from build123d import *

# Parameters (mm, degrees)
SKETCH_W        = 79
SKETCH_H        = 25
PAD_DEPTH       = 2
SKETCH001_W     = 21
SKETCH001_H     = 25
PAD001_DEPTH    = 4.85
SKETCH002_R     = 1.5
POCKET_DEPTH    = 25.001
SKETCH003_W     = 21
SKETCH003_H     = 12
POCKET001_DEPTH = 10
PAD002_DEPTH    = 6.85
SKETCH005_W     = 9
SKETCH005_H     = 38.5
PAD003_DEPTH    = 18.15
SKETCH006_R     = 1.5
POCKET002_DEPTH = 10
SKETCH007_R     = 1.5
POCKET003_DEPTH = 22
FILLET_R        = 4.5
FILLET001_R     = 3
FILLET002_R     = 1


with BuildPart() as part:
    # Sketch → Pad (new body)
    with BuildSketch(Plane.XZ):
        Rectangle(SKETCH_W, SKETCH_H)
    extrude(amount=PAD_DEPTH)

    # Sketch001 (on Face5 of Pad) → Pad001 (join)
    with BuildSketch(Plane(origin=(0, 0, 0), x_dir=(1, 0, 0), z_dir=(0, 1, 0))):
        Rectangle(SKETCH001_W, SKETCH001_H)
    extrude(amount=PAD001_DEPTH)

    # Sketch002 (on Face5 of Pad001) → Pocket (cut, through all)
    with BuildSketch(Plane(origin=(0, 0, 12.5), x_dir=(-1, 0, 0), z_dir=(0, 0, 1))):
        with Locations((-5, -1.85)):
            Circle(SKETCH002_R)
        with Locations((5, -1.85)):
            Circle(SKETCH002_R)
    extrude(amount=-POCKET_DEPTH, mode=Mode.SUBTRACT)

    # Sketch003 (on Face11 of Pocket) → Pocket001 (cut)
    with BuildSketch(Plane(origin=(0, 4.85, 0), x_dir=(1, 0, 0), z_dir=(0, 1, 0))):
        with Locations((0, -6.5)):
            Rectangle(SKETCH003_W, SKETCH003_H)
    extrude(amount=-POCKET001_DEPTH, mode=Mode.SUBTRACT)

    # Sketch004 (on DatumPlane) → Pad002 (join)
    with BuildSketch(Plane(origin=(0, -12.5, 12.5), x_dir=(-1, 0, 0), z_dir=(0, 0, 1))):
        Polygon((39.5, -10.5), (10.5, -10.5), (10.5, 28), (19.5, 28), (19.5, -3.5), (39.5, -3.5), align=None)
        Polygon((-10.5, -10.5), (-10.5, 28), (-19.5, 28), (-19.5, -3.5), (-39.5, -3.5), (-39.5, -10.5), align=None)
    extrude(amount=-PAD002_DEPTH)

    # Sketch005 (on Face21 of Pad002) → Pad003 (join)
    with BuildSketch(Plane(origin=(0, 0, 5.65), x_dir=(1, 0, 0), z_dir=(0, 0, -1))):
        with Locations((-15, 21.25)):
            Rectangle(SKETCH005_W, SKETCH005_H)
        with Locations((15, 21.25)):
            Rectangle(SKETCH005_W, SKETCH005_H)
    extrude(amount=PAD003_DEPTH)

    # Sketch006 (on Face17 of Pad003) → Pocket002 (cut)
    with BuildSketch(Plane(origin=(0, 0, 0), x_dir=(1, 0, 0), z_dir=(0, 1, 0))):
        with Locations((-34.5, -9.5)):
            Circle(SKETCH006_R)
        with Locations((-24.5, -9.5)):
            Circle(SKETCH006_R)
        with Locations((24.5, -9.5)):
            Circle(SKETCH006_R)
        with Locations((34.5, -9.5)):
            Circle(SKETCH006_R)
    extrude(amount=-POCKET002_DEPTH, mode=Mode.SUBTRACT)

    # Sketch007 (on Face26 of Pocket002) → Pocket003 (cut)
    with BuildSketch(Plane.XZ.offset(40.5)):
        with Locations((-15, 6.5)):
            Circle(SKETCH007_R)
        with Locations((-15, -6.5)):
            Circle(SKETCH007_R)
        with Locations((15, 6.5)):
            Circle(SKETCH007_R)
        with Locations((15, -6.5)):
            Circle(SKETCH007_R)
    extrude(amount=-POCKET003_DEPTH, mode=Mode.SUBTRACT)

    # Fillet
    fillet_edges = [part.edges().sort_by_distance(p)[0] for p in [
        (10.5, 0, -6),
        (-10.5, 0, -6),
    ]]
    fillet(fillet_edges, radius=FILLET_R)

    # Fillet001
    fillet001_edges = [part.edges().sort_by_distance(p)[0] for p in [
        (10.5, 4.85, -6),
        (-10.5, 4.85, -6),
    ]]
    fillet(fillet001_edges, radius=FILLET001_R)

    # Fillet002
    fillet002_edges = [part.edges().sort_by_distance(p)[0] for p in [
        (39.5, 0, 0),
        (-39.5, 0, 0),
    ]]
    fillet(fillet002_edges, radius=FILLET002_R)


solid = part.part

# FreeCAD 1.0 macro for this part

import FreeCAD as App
import Part
import Sketcher
from FreeCAD import Vector


def edges_at(feature, points):
    """Names of the edges that pass closest to the given points."""
    edges = feature.Shape.Edges
    near = lambda p: min(range(len(edges)), key=lambda i: edges[i].distToShape(Part.Vertex(*p))[0])
    return sorted({f"Edge{near(p) + 1}" for p in points})

doc = App.newDocument("Part")
body = doc.addObject("PartDesign::Body", "Body")

sketch1 = body.newObject("Sketcher::SketchObject", "Sketch")
sketch1.AttachmentSupport = (doc.getObject("XZ_Plane"), [""])
sketch1.MapMode = "FlatFace"
sketch1.addGeometry([
    Part.LineSegment(Vector(-40, 12, 0), Vector(-40, -12, 0)),
    Part.LineSegment(Vector(-40, -12, 0), Vector(40, -12, 0)),
    Part.LineSegment(Vector(40, -12, 0), Vector(40, 12, 0)),
    Part.LineSegment(Vector(40, 12, 0), Vector(-40, 12, 0)),
], False)
sketch1.addConstraint([
    Sketcher.Constraint("Coincident", 0, 2, 1, 1),
    Sketcher.Constraint("Coincident", 1, 2, 2, 1),
    Sketcher.Constraint("Coincident", 2, 2, 3, 1),
    Sketcher.Constraint("Coincident", 3, 2, 0, 1),
    Sketcher.Constraint("Vertical", 0),
    Sketcher.Constraint("Horizontal", 1),
    Sketcher.Constraint("Vertical", 2),
    Sketcher.Constraint("Horizontal", 3),
    Sketcher.Constraint("Symmetric", 0, 2, 2, 2, -1, 1),
    Sketcher.Constraint("DistanceX", 1, 1, 1, 2, 79.0),
    Sketcher.Constraint("DistanceY", 0, 2, 0, 1, 25.0),
])
pad1 = body.newObject("PartDesign::Pad", "Pad")
pad1.Profile = sketch1
pad1.Length = 2

sketch2 = body.newObject("Sketcher::SketchObject", "Sketch001")
sketch2.AttachmentSupport = (doc.getObject("XZ_Plane"), [""])
sketch2.MapMode = "FlatFace"
sketch2.addGeometry([
    Part.LineSegment(Vector(-10, -12, 0), Vector(-10, 12, 0)),
    Part.LineSegment(Vector(-10, 12, 0), Vector(10, 12, 0)),
    Part.LineSegment(Vector(10, 12, 0), Vector(10, -12, 0)),
    Part.LineSegment(Vector(10, -12, 0), Vector(-10, -12, 0)),
], False)
sketch2.addConstraint([
    Sketcher.Constraint("Coincident", 0, 2, 1, 1),
    Sketcher.Constraint("Coincident", 1, 2, 2, 1),
    Sketcher.Constraint("Coincident", 2, 2, 3, 1),
    Sketcher.Constraint("Coincident", 3, 2, 0, 1),
    Sketcher.Constraint("Vertical", 0),
    Sketcher.Constraint("Horizontal", 1),
    Sketcher.Constraint("Vertical", 2),
    Sketcher.Constraint("Horizontal", 3),
    Sketcher.Constraint("Symmetric", 0, 2, 2, 2, -1, 1),
    Sketcher.Constraint("DistanceX", 1, 1, 1, 2, 21.0),
    Sketcher.Constraint("DistanceY", 0, 1, 0, 2, 25.0),
])
pad2 = body.newObject("PartDesign::Pad", "Pad001")
pad2.Profile = sketch2
pad2.Length = 4.85
pad2.Reversed = True

sketch3 = body.newObject("Sketcher::SketchObject", "Sketch002")
sketch3.AttachmentSupport = (doc.getObject("XY_Plane"), [""])
sketch3.MapMode = "FlatFace"
sketch3.AttachmentOffset = App.Placement(Vector(0, 0, 12.5), App.Rotation())
sketch3.addGeometry([
    Part.Circle(Vector(5, 1.9, 0), Vector(0, 0, 1), 1.5),
    Part.Circle(Vector(-5, 1.9, 0), Vector(0, 0, 1), 1.5),
], False)
sketch3.addConstraint([
    Sketcher.Constraint("Equal", 0, 1),
    Sketcher.Constraint("Symmetric", 0, 3, 1, 3, -2),
    Sketcher.Constraint("Diameter", 0, 3.0),
    Sketcher.Constraint("DistanceX", -1, 1, 0, 3, 5.0),
    Sketcher.Constraint("DistanceY", -1, 1, 0, 3, 1.85),
])
pocket1 = body.newObject("PartDesign::Pocket", "Pocket")
pocket1.Profile = sketch3
pocket1.Type = "ThroughAll"

sketch4 = body.newObject("Sketcher::SketchObject", "Sketch003")
sketch4.AttachmentSupport = (doc.getObject("XZ_Plane"), [""])
sketch4.MapMode = "FlatFace"
sketch4.AttachmentOffset = App.Placement(Vector(0, 0, -4.85), App.Rotation())
sketch4.addGeometry([
    Part.LineSegment(Vector(-10, 0, 0), Vector(-10, 12, 0)),
    Part.LineSegment(Vector(-10, 12, 0), Vector(10, 12, 0)),
    Part.LineSegment(Vector(10, 12, 0), Vector(10, 0, 0)),
    Part.LineSegment(Vector(10, 0, 0), Vector(-10, 0, 0)),
], False)
sketch4.addConstraint([
    Sketcher.Constraint("Coincident", 0, 2, 1, 1),
    Sketcher.Constraint("Coincident", 1, 2, 2, 1),
    Sketcher.Constraint("Coincident", 2, 2, 3, 1),
    Sketcher.Constraint("Coincident", 3, 2, 0, 1),
    Sketcher.Constraint("Vertical", 0),
    Sketcher.Constraint("Horizontal", 1),
    Sketcher.Constraint("Vertical", 2),
    Sketcher.Constraint("Horizontal", 3),
    Sketcher.Constraint("DistanceX", 1, 1, 1, 2, 21.0),
    Sketcher.Constraint("DistanceY", 0, 1, 0, 2, 12.0),
    Sketcher.Constraint("DistanceX", 0, 2, -1, 1, 10.5),
    Sketcher.Constraint("DistanceY", -1, 1, 0, 2, 12.5),
])
pocket2 = body.newObject("PartDesign::Pocket", "Pocket001")
pocket2.Profile = sketch4
pocket2.Length = 10
pocket2.Reversed = True

sketch5 = body.newObject("Sketcher::SketchObject", "Sketch004")
sketch5.AttachmentSupport = (doc.getObject("XY_Plane"), [""])
sketch5.MapMode = "FlatFace"
sketch5.AttachmentOffset = App.Placement(Vector(0, 0, 12.5), App.Rotation())
sketch5.addGeometry([
    Part.LineSegment(Vector(-10, -2, 0), Vector(-40, -2, 0)),
    Part.LineSegment(Vector(-40, -2, 0), Vector(-40, -9, 0)),
    Part.LineSegment(Vector(-40, -9, 0), Vector(-20, -9, 0)),
    Part.LineSegment(Vector(-20, -9, 0), Vector(-20, -40, 0)),
    Part.LineSegment(Vector(-20, -40, 0), Vector(-10, -40, 0)),
    Part.LineSegment(Vector(-10, -40, 0), Vector(-10, -2, 0)),
    Part.LineSegment(Vector(10, -2, 0), Vector(10, -40, 0)),
    Part.LineSegment(Vector(10, -40, 0), Vector(20, -40, 0)),
    Part.LineSegment(Vector(20, -40, 0), Vector(20, -9, 0)),
    Part.LineSegment(Vector(20, -9, 0), Vector(40, -9, 0)),
    Part.LineSegment(Vector(40, -9, 0), Vector(40, -2, 0)),
    Part.LineSegment(Vector(40, -2, 0), Vector(10, -2, 0)),
], False)
sketch5.addConstraint([
    Sketcher.Constraint("Coincident", 0, 2, 1, 1),
    Sketcher.Constraint("Coincident", 1, 2, 2, 1),
    Sketcher.Constraint("Coincident", 2, 2, 3, 1),
    Sketcher.Constraint("Coincident", 3, 2, 4, 1),
    Sketcher.Constraint("Coincident", 4, 2, 5, 1),
    Sketcher.Constraint("Coincident", 5, 2, 0, 1),
    Sketcher.Constraint("Coincident", 6, 2, 7, 1),
    Sketcher.Constraint("Coincident", 7, 2, 8, 1),
    Sketcher.Constraint("Coincident", 8, 2, 9, 1),
    Sketcher.Constraint("Coincident", 9, 2, 10, 1),
    Sketcher.Constraint("Coincident", 10, 2, 11, 1),
    Sketcher.Constraint("Coincident", 11, 2, 6, 1),
    Sketcher.Constraint("Horizontal", 0),
    Sketcher.Constraint("Vertical", 1),
    Sketcher.Constraint("Horizontal", 2),
    Sketcher.Constraint("Vertical", 3),
    Sketcher.Constraint("Horizontal", 4),
    Sketcher.Constraint("Vertical", 5),
    Sketcher.Constraint("Vertical", 6),
    Sketcher.Constraint("Horizontal", 7),
    Sketcher.Constraint("Vertical", 8),
    Sketcher.Constraint("Horizontal", 9),
    Sketcher.Constraint("Vertical", 10),
    Sketcher.Constraint("Horizontal", 11),
    Sketcher.Constraint("Symmetric", 4, 2, 6, 2, -2),
    Sketcher.Constraint("Symmetric", 2, 2, 8, 2, -2),
    Sketcher.Constraint("Symmetric", 0, 2, 10, 2, -2),
    Sketcher.Constraint("DistanceX", 0, 2, 0, 1, 29.0),
    Sketcher.Constraint("DistanceX", 2, 1, 2, 2, 20.0),
    Sketcher.Constraint("DistanceY", 1, 2, 1, 1, 7.0),
    Sketcher.Constraint("DistanceY", 3, 2, 3, 1, 31.5),
    Sketcher.Constraint("DistanceY", 0, 2, -1, 1, 2.0),
    Sketcher.Constraint("DistanceX", 4, 2, 6, 2, 21.0),
])
pad3 = body.newObject("PartDesign::Pad", "Pad002")
pad3.Profile = sketch5
pad3.Length = 6.85
pad3.Reversed = True

sketch6 = body.newObject("Sketcher::SketchObject", "Sketch005")
sketch6.AttachmentSupport = (doc.getObject("XY_Plane"), [""])
sketch6.MapMode = "FlatFace"
sketch6.AttachmentOffset = App.Placement(Vector(0, 0, 5.65), App.Rotation())
sketch6.addGeometry([
    Part.LineSegment(Vector(-20, -40, 0), Vector(-20, -2, 0)),
    Part.LineSegment(Vector(-20, -2, 0), Vector(-10, -2, 0)),
    Part.LineSegment(Vector(-10, -2, 0), Vector(-10, -40, 0)),
    Part.LineSegment(Vector(-10, -40, 0), Vector(-20, -40, 0)),
    Part.LineSegment(Vector(10, -40, 0), Vector(10, -2, 0)),
    Part.LineSegment(Vector(10, -2, 0), Vector(20, -2, 0)),
    Part.LineSegment(Vector(20, -2, 0), Vector(20, -40, 0)),
    Part.LineSegment(Vector(20, -40, 0), Vector(10, -40, 0)),
], False)
sketch6.addConstraint([
    Sketcher.Constraint("Coincident", 0, 2, 1, 1),
    Sketcher.Constraint("Coincident", 1, 2, 2, 1),
    Sketcher.Constraint("Coincident", 2, 2, 3, 1),
    Sketcher.Constraint("Coincident", 3, 2, 0, 1),
    Sketcher.Constraint("Coincident", 4, 2, 5, 1),
    Sketcher.Constraint("Coincident", 5, 2, 6, 1),
    Sketcher.Constraint("Coincident", 6, 2, 7, 1),
    Sketcher.Constraint("Coincident", 7, 2, 4, 1),
    Sketcher.Constraint("Vertical", 0),
    Sketcher.Constraint("Horizontal", 1),
    Sketcher.Constraint("Vertical", 2),
    Sketcher.Constraint("Horizontal", 3),
    Sketcher.Constraint("Vertical", 4),
    Sketcher.Constraint("Horizontal", 5),
    Sketcher.Constraint("Vertical", 6),
    Sketcher.Constraint("Horizontal", 7),
    Sketcher.Constraint("Symmetric", 1, 2, 4, 2, -2),
    Sketcher.Constraint("Symmetric", 3, 2, 6, 2, -2),
    Sketcher.Constraint("DistanceX", 1, 1, 1, 2, 9.0),
    Sketcher.Constraint("DistanceY", 0, 1, 0, 2, 38.5),
    Sketcher.Constraint("DistanceY", 0, 2, -1, 1, 2.0),
    Sketcher.Constraint("DistanceX", 1, 2, 4, 2, 21.0),
])
pad4 = body.newObject("PartDesign::Pad", "Pad003")
pad4.Profile = sketch6
pad4.Length = 18.15
pad4.Reversed = True

sketch7 = body.newObject("Sketcher::SketchObject", "Sketch006")
sketch7.AttachmentSupport = (doc.getObject("XZ_Plane"), [""])
sketch7.MapMode = "FlatFace"
sketch7.addGeometry([
    Part.Circle(Vector(-34.5, 9.5, 0), Vector(0, 0, 1), 1.5),
    Part.Circle(Vector(-24.5, 9.5, 0), Vector(0, 0, 1), 1.5),
    Part.Circle(Vector(24.5, 9.5, 0), Vector(0, 0, 1), 1.5),
    Part.Circle(Vector(34.5, 9.5, 0), Vector(0, 0, 1), 1.5),
], False)
sketch7.addConstraint([
    Sketcher.Constraint("Equal", 0, 1),
    Sketcher.Constraint("Equal", 1, 2),
    Sketcher.Constraint("Equal", 2, 3),
    Sketcher.Constraint("Symmetric", 1, 3, 2, 3, -2),
    Sketcher.Constraint("Symmetric", 0, 3, 3, 3, -2),
    Sketcher.Constraint("Horizontal", 0, 3, 1, 3),
    Sketcher.Constraint("Diameter", 0, 3.0),
    Sketcher.Constraint("DistanceX", 0, 3, 1, 3, 10.0),
    Sketcher.Constraint("DistanceX", 1, 3, 2, 3, 49.0),
    Sketcher.Constraint("DistanceY", -1, 1, 0, 3, 9.5),
])
pocket3 = body.newObject("PartDesign::Pocket", "Pocket002")
pocket3.Profile = sketch7
pocket3.Length = 10
pocket3.Reversed = True

sketch8 = body.newObject("Sketcher::SketchObject", "Sketch007")
sketch8.AttachmentSupport = (doc.getObject("XZ_Plane"), [""])
sketch8.MapMode = "FlatFace"
sketch8.AttachmentOffset = App.Placement(Vector(0, 0, 40.5), App.Rotation())
sketch8.addGeometry([
    Part.Circle(Vector(-15, 6.5, 0), Vector(0, 0, 1), 1.5),
    Part.Circle(Vector(-15, -6.5, 0), Vector(0, 0, 1), 1.5),
    Part.Circle(Vector(15, 6.5, 0), Vector(0, 0, 1), 1.5),
    Part.Circle(Vector(15, -6.5, 0), Vector(0, 0, 1), 1.5),
], False)
sketch8.addConstraint([
    Sketcher.Constraint("Equal", 0, 1),
    Sketcher.Constraint("Equal", 1, 2),
    Sketcher.Constraint("Equal", 2, 3),
    Sketcher.Constraint("Symmetric", 1, 3, 2, 3, -1, 1),
    Sketcher.Constraint("Symmetric", 0, 3, 3, 3, -1, 1),
    Sketcher.Constraint("Symmetric", 0, 3, 2, 3, -2),
    Sketcher.Constraint("Diameter", 0, 3.0),
    Sketcher.Constraint("DistanceX", 0, 3, -1, 1, 15.0),
    Sketcher.Constraint("DistanceY", 1, 3, 0, 3, 13.0),
])
pocket4 = body.newObject("PartDesign::Pocket", "Pocket003")
pocket4.Profile = sketch8
pocket4.Length = 22
doc.recompute()

fillet = body.newObject("PartDesign::Fillet", "Fillet")
fillet.Base = (pocket4, edges_at(pocket4, [(10.5, 0, -6), (-10.5, 0, -6)]))
fillet.Radius = 4.5
doc.recompute()

fillet2 = body.newObject("PartDesign::Fillet", "Fillet001")
fillet2.Base = (fillet, edges_at(fillet, [(10.5, 4.85, -6), (-10.5, 4.85, -6)]))
fillet2.Radius = 3
doc.recompute()

fillet3 = body.newObject("PartDesign::Fillet", "Fillet002")
fillet3.Base = (fillet2, edges_at(fillet2, [(39.5, 0, 0), (-39.5, 0, 0)]))
fillet3.Radius = 1

doc.recompute()
